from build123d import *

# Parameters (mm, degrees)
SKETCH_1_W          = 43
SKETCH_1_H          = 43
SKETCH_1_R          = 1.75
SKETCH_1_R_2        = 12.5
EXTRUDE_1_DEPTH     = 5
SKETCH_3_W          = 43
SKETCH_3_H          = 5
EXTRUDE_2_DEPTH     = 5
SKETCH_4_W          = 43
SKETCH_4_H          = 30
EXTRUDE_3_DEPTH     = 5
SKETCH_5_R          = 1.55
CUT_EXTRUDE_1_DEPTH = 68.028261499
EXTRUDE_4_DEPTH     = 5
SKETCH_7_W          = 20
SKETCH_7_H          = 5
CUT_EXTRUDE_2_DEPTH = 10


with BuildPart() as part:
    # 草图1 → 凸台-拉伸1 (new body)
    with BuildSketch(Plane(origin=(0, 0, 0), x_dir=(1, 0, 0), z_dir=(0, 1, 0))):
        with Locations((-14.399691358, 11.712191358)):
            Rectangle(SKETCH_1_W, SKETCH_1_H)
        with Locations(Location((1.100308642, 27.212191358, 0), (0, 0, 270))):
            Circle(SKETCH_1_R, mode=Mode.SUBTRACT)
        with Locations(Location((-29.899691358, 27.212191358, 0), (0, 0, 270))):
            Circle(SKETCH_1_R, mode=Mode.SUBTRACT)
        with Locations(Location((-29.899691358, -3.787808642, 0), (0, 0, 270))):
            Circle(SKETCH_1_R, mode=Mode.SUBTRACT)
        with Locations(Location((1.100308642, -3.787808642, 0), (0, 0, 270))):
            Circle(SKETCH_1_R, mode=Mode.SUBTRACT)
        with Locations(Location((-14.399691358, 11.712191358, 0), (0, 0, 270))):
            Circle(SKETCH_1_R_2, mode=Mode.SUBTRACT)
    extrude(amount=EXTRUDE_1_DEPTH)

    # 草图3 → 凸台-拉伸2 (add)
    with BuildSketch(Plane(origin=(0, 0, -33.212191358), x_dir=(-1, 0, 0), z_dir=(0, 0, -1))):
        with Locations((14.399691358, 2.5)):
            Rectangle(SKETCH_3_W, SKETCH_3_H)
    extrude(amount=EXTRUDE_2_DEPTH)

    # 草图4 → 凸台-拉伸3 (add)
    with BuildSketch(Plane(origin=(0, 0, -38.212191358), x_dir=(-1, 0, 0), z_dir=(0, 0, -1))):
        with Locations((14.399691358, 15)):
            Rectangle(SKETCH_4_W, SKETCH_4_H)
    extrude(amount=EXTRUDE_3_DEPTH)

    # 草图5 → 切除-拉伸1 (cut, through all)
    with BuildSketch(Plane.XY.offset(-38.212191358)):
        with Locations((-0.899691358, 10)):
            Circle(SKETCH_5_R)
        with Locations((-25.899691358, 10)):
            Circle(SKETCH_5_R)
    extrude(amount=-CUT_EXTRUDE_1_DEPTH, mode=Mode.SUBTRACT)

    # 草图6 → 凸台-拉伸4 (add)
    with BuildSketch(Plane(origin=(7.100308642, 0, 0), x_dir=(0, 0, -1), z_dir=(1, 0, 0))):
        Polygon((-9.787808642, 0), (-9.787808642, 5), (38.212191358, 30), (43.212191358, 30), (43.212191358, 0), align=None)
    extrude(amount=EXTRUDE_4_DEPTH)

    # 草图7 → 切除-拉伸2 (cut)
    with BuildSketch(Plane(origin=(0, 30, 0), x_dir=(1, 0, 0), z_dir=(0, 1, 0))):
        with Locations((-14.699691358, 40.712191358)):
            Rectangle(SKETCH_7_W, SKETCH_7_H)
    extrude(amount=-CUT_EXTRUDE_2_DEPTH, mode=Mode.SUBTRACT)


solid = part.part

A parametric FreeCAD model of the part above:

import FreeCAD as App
import Part
import Sketcher

V = App.Vector
Q = App.Units.Quantity


def add_polygon(sketch, points):
    """Adds a closed chain of lines whose ends are joined by coincident constraints."""
    first, n = sketch.GeometryCount, len(points)
    for a, b in zip(points, points[1:] + points[:1]):
        sketch.addGeometry(Part.LineSegment(App.Vector(*a, 0), App.Vector(*b, 0)), False)
    for i in range(n):
        sketch.addConstraint(Sketcher.Constraint("Coincident", first + i, 2, first + (i + 1) % n, 1))

doc = App.newDocument("Part")
body = doc.addObject("PartDesign::Body", "Body")

# Sketch on XZ plane
sketch1 = body.newObject("Sketcher::SketchObject", "Sketch")
sketch1.AttachmentSupport = (doc.getObject("XZ_Plane"), [""])
sketch1.MapMode = "FlatFace"
add_polygon(sketch1, [(-35.9, -33.2), (-35.9, 9.8), (7.1, 9.8), (7.1, -33.2)])  # lines 0-3
sketch1.addGeometry(Part.Circle(V(-29.9, 3.8, 0), V(0, 0, 1), 1.8), False)  # 4
sketch1.addGeometry(Part.Circle(V(1.1, 3.8, 0), V(0, 0, 1), 1.8), False)  # 5
sketch1.addGeometry(Part.Circle(V(-29.9, -27.2, 0), V(0, 0, 1), 1.8), False)  # 6
sketch1.addGeometry(Part.Circle(V(-14.4, -11.7, 0), V(0, 0, 1), 12.5), False)  # 7
sketch1.addGeometry(Part.Circle(V(1.1, -27.2, 0), V(0, 0, 1), 1.8), False)  # 8
sketch1.addConstraint([
    Sketcher.Constraint("Vertical", 0),
    Sketcher.Constraint("Horizontal", 1),
    Sketcher.Constraint("Vertical", 2),
    Sketcher.Constraint("Horizontal", 3),
    Sketcher.Constraint("Equal", 4, 5),
    Sketcher.Constraint("Equal", 5, 6),
    Sketcher.Constraint("Equal", 6, 8),
    Sketcher.Constraint("Horizontal", 4, 3, 5, 3),
    Sketcher.Constraint("Horizontal", 6, 3, 8, 3),
    Sketcher.Constraint("Vertical", 4, 3, 6, 3),
    Sketcher.Constraint("Vertical", 5, 3, 8, 3),
    Sketcher.Constraint("Equal", 3, 0),
    Sketcher.Constraint("Diameter", 7, Q("25 mm")),
    Sketcher.Constraint("Diameter", 4, Q("3.5 mm")),
    Sketcher.Constraint("DistanceX", 1, 1, 1, 2, Q("43 mm")),
    Sketcher.Constraint("DistanceX", 4, 3, 5, 3, Q("31 mm")),
    Sketcher.Constraint("DistanceY", 6, 3, 4, 3, Q("31 mm")),
    Sketcher.Constraint("DistanceX", 0, 2, 4, 3, Q("6 mm")),
    Sketcher.Constraint("DistanceY", 4, 3, 0, 2, Q("6 mm")),
    Sketcher.Constraint("DistanceX", 6, 3, 7, 3, Q("15.5 mm")),
    Sketcher.Constraint("DistanceY", 6, 3, 7, 3, Q("15.5 mm")),
    Sketcher.Constraint("DistanceX", 4, 3, -1, 1, Q("29.899691 mm")),
    Sketcher.Constraint("DistanceY", -1, 1, 4, 3, Q("3.787809 mm")),
])
pad1 = body.newObject("PartDesign::Pad", "Pad")
pad1.Profile = sketch1
pad1.Length = 5
pad1.Reversed = True

# Sketch on XY plane
sketch2 = body.newObject("Sketcher::SketchObject", "Sketch001")
sketch2.AttachmentSupport = (doc.getObject("XY_Plane"), [""])
sketch2.MapMode = "FlatFace"
sketch2.AttachmentOffset = App.Placement(V(0, 0, -33.212191), App.Rotation())
add_polygon(sketch2, [(7, 5), (7, 0), (-36, 0), (-36, 5)])  # lines 0-3
sketch2.addConstraint([
    Sketcher.Constraint("Vertical", 0),
    Sketcher.Constraint("Horizontal", 1),
    Sketcher.Constraint("Vertical", 2),
    Sketcher.Constraint("Horizontal", 3),
    Sketcher.Constraint("PointOnObject", 0, 2, -1),
    Sketcher.Constraint("DistanceX", 1, 2, 1, 1, Q("43 mm")),
    Sketcher.Constraint("DistanceY", 0, 2, 0, 1, Q("5 mm")),
    Sketcher.Constraint("DistanceX", -1, 1, 0, 2, Q("7.100309 mm")),
])
pad2 = body.newObject("PartDesign::Pad", "Pad001")
pad2.Profile = sketch2
pad2.Length = 5
pad2.Reversed = True

# Sketch on XY plane
sketch3 = body.newObject("Sketcher::SketchObject", "Sketch002")
sketch3.AttachmentSupport = (doc.getObject("XY_Plane"), [""])
sketch3.MapMode = "FlatFace"
sketch3.AttachmentOffset = App.Placement(V(0, 0, -38.212191), App.Rotation())
add_polygon(sketch3, [(7, 30), (7, 0), (-36, 0), (-36, 30)])  # lines 0-3
sketch3.addConstraint([
    Sketcher.Constraint("Vertical", 0),
    Sketcher.Constraint("Horizontal", 1),
    Sketcher.Constraint("Vertical", 2),
    Sketcher.Constraint("Horizontal", 3),
    Sketcher.Constraint("PointOnObject", 0, 2, -1),
    Sketcher.Constraint("DistanceX", 1, 2, 1, 1, Q("43 mm")),
    Sketcher.Constraint("DistanceY", 0, 2, 0, 1, Q("30 mm")),
    Sketcher.Constraint("DistanceX", -1, 1, 0, 2, Q("7.100309 mm")),
])
pad3 = body.newObject("PartDesign::Pad", "Pad002")
pad3.Profile = sketch3
pad3.Length = 5
pad3.Reversed = True

# Sketch on XY plane
sketch4 = body.newObject("Sketcher::SketchObject", "Sketch003")
sketch4.AttachmentSupport = (doc.getObject("XY_Plane"), [""])
sketch4.MapMode = "FlatFace"
sketch4.AttachmentOffset = App.Placement(V(0, 0, -38.212191), App.Rotation())
sketch4.addGeometry([
    Part.Circle(V(-0.9, 10, 0), V(0, 0, 1), 1.6),
    Part.Circle(V(-25.9, 10, 0), V(0, 0, 1), 1.6),
], False)
sketch4.addConstraint([
    Sketcher.Constraint("Equal", 0, 1),
    Sketcher.Constraint("Horizontal", 0, 3, 1, 3),
    Sketcher.Constraint("Diameter", 0, Q("3.1 mm")),
    Sketcher.Constraint("DistanceY", -1, 1, 0, 3, Q("10 mm")),
    Sketcher.Constraint("DistanceX", 1, 3, 0, 3, Q("25 mm")),
    Sketcher.Constraint("DistanceX", 0, 3, -1, 1, Q("0.899691 mm")),
])
pocket1 = body.newObject("PartDesign::Pocket", "Pocket")
pocket1.Profile = sketch4
pocket1.Type = "ThroughAll"

# Sketch on YZ plane
sketch5 = body.newObject("Sketcher::SketchObject", "Sketch004")
sketch5.AttachmentSupport = (doc.getObject("YZ_Plane"), [""])
sketch5.MapMode = "FlatFace"
sketch5.AttachmentOffset = App.Placement(V(0, 0, 7.100309), App.Rotation())
add_polygon(sketch5, [(5, 10), (0, 10), (0, -43), (30, -43), (30, -38)])  # lines 0-4
sketch5.addConstraint([
    Sketcher.Constraint("Horizontal", 0),
    Sketcher.Constraint("Vertical", 1),
    Sketcher.Constraint("Horizontal", 2),
    Sketcher.Constraint("Vertical", 3),
    Sketcher.Constraint("PointOnObject", 0, 2, -2),
    Sketcher.Constraint("Equal", 0, 3),
    Sketcher.Constraint("DistanceX", 0, 2, 0, 1, Q("5 mm")),
    Sketcher.Constraint("DistanceX", 2, 1, 2, 2, Q("30 mm")),
    Sketcher.Constraint("DistanceY", 1, 2, 1, 1, Q("53 mm")),
    Sketcher.Constraint("DistanceY", -1, 1, 0, 2, Q("9.787809 mm")),
])
pad4 = body.newObject("PartDesign::Pad", "Pad003")
pad4.Profile = sketch5
pad4.Length = 5

# Sketch on XZ plane
sketch6 = body.newObject("Sketcher::SketchObject", "Sketch005")
sketch6.AttachmentSupport = (doc.getObject("XZ_Plane"), [""])
sketch6.MapMode = "FlatFace"
sketch6.AttachmentOffset = App.Placement(V(0, 0, -30), App.Rotation())
add_polygon(sketch6, [(-25, -43), (-25, -38), (-5, -38), (-5, -43)])  # lines 0-3
sketch6.addConstraint([
    Sketcher.Constraint("Vertical", 0),
    Sketcher.Constraint("Horizontal", 1),
    Sketcher.Constraint("Vertical", 2),
    Sketcher.Constraint("Horizontal", 3),
    Sketcher.Constraint("DistanceX", 1, 1, 1, 2, Q("20 mm")),
    Sketcher.Constraint("DistanceY", 0, 1, 0, 2, Q("5 mm")),
    Sketcher.Constraint("DistanceX", 0, 2, -1, 1, Q("24.699691 mm")),
    Sketcher.Constraint("DistanceY", 0, 2, -1, 1, Q("38.212191 mm")),
])
pocket2 = body.newObject("PartDesign::Pocket", "Pocket001")
pocket2.Profile = sketch6
pocket2.Length = 10
pocket2.Reversed = True

doc.recompute()
